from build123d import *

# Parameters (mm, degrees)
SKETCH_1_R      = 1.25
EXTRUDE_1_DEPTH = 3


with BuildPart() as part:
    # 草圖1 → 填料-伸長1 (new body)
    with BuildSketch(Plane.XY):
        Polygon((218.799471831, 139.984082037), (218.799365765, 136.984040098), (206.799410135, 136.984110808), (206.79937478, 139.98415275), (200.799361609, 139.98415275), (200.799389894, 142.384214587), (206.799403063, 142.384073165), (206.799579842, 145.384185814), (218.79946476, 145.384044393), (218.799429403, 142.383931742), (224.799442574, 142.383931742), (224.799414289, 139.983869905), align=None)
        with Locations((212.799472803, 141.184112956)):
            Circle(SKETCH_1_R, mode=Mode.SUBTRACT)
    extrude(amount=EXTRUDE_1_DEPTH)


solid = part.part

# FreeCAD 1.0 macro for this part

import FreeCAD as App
import Part
import Sketcher

V = App.Vector

doc = App.newDocument("Part")
body = doc.addObject("PartDesign::Body", "Body")

# Sketch on XY plane
sketch1 = doc.addObject("Sketcher::SketchObject", "Sketch")
body.addObject(sketch1)
sketch1.AttachmentSupport = (doc.XY_Plane, [""])
sketch1.MapMode = "FlatFace"
sketch1.addGeometry(Part.LineSegment(V(218.8, 137, 0), V(218.8, 140, 0)), False)
sketch1.addGeometry(Part.LineSegment(V(218.8, 140, 0), V(224.8, 140, 0)), False)
sketch1.addGeometry(Part.LineSegment(V(224.8, 140, 0), V(224.8, 142.4, 0)), False)
sketch1.addGeometry(Part.LineSegment(V(224.8, 142.4, 0), V(218.8, 142.4, 0)), False)
sketch1.addGeometry(Part.LineSegment(V(218.8, 142.4, 0), V(218.8, 145.4, 0)), False)
sketch1.addGeometry(Part.LineSegment(V(218.8, 145.4, 0), V(206.8, 145.4, 0)), False)
sketch1.addGeometry(Part.LineSegment(V(206.8, 145.4, 0), V(206.8, 142.4, 0)), False)
sketch1.addGeometry(Part.LineSegment(V(206.8, 142.4, 0), V(200.8, 142.4, 0)), False)
sketch1.addGeometry(Part.LineSegment(V(200.8, 142.4, 0), V(200.8, 140, 0)), False)
sketch1.addGeometry(Part.LineSegment(V(200.8, 140, 0), V(206.8, 140, 0)), False)
sketch1.addGeometry(Part.LineSegment(V(206.8, 140, 0), V(206.8, 137, 0)), False)
sketch1.addGeometry(Part.LineSegment(V(206.8, 137, 0), V(218.8, 137, 0)), False)
sketch1.addGeometry(Part.Circle(V(212.8, 141.2, 0), V(0, 0, 1), 1.2), False)
sketch1.addConstraint(Sketcher.Constraint("Coincident", 0, 2, 1, 1))
sketch1.addConstraint(Sketcher.Constraint("Coincident", 1, 2, 2, 1))
sketch1.addConstraint(Sketcher.Constraint("Coincident", 2, 2, 3, 1))
sketch1.addConstraint(Sketcher.Constraint("Coincident", 3, 2, 4, 1))
sketch1.addConstraint(Sketcher.Constraint("Coincident", 4, 2, 5, 1))
sketch1.addConstraint(Sketcher.Constraint("Coincident", 5, 2, 6, 1))
sketch1.addConstraint(Sketcher.Constraint("Coincident", 6, 2, 7, 1))
sketch1.addConstraint(Sketcher.Constraint("Coincident", 7, 2, 8, 1))
sketch1.addConstraint(Sketcher.Constraint("Coincident", 8, 2, 9, 1))
sketch1.addConstraint(Sketcher.Constraint("Coincident", 9, 2, 10, 1))
sketch1.addConstraint(Sketcher.Constraint("Coincident", 10, 2, 11, 1))
sketch1.addConstraint(Sketcher.Constraint("Coincident", 11, 2, 0, 1))
sketch1.addConstraint(Sketcher.Constraint("Horizontal", 3))
sketch1.addConstraint(Sketcher.Constraint("Horizontal", 9))
sketch1.addConstraint(Sketcher.Constraint("Perpendicular", 0, 1))
sketch1.addConstraint(Sketcher.Constraint("Parallel", 2, 4))
sketch1.addConstraint(Sketcher.Constraint("Perpendicular", 4, 5))
sketch1.addConstraint(Sketcher.Constraint("Perpendicular", 5, 8))
sketch1.addConstraint(Sketcher.Constraint("Equal", 3, 9))
sketch1.addConstraint(Sketcher.Constraint("Equal", 4, 6))
sketch1.addConstraint(Sketcher.Constraint("Equal", 2, 8))
sketch1.addConstraint(Sketcher.Constraint("Equal", 0, 10))
sketch1.addConstraint(Sketcher.Constraint("Diameter", 12, 2.5))
sketch1.addConstraint(Sketcher.Constraint("DistanceX", 12, 3, 0, 2, 5.999999))
sketch1.addConstraint(Sketcher.Constraint("DistanceY", 12, 3, 7, 2, 1.200102))
sketch1.addConstraint(Sketcher.Constraint("DistanceX", 9, 2, 12, 3, 6.000098))
sketch1.addConstraint(Sketcher.Constraint("Distance", 0, 3.000042))
sketch1.addConstraint(Sketcher.Constraint("Distance", 2, 2.400062))
sketch1.addConstraint(Sketcher.Constraint("DistanceX", 3, 2, 3, 1, 6.000013))
sketch1.addConstraint(Sketcher.Constraint("DistanceX", -1, 1, 0, 2, 218.799472))
sketch1.addConstraint(Sketcher.Constraint("DistanceY", -1, 1, 1, 2, 139.98387))
sketch1.addConstraint(Sketcher.Constraint("DistanceX", -1, 1, 3, 2, 218.799429))
sketch1.addConstraint(Sketcher.Constraint("DistanceX", -1, 1, 5, 2, 206.79958))
sketch1.addConstraint(Sketcher.Constraint("DistanceX", -1, 1, 7, 2, 200.79939))
sketch1.addConstraint(Sketcher.Constraint("DistanceX", -1, 1, 10, 2, 206.79941))
sketch1.addConstraint(Sketcher.Constraint("DistanceY", -1, 1, 10, 2, 136.984111))
sketch1.addConstraint(Sketcher.Constraint("DistanceY", -1, 1, 11, 2, 136.98404))
sketch1.addConstraint(Sketcher.Constraint("DistanceY", 12, 3, 4, 2, 4.199931))
sketch1.addConstraint(Sketcher.Constraint("DistanceX", 6, 2, 12, 3, 6.00007))
pad1 = doc.addObject("PartDesign::Pad", "Pad")
body.addObject(pad1)
pad1.Profile = sketch1
pad1.Length = 3

doc.recompute()
